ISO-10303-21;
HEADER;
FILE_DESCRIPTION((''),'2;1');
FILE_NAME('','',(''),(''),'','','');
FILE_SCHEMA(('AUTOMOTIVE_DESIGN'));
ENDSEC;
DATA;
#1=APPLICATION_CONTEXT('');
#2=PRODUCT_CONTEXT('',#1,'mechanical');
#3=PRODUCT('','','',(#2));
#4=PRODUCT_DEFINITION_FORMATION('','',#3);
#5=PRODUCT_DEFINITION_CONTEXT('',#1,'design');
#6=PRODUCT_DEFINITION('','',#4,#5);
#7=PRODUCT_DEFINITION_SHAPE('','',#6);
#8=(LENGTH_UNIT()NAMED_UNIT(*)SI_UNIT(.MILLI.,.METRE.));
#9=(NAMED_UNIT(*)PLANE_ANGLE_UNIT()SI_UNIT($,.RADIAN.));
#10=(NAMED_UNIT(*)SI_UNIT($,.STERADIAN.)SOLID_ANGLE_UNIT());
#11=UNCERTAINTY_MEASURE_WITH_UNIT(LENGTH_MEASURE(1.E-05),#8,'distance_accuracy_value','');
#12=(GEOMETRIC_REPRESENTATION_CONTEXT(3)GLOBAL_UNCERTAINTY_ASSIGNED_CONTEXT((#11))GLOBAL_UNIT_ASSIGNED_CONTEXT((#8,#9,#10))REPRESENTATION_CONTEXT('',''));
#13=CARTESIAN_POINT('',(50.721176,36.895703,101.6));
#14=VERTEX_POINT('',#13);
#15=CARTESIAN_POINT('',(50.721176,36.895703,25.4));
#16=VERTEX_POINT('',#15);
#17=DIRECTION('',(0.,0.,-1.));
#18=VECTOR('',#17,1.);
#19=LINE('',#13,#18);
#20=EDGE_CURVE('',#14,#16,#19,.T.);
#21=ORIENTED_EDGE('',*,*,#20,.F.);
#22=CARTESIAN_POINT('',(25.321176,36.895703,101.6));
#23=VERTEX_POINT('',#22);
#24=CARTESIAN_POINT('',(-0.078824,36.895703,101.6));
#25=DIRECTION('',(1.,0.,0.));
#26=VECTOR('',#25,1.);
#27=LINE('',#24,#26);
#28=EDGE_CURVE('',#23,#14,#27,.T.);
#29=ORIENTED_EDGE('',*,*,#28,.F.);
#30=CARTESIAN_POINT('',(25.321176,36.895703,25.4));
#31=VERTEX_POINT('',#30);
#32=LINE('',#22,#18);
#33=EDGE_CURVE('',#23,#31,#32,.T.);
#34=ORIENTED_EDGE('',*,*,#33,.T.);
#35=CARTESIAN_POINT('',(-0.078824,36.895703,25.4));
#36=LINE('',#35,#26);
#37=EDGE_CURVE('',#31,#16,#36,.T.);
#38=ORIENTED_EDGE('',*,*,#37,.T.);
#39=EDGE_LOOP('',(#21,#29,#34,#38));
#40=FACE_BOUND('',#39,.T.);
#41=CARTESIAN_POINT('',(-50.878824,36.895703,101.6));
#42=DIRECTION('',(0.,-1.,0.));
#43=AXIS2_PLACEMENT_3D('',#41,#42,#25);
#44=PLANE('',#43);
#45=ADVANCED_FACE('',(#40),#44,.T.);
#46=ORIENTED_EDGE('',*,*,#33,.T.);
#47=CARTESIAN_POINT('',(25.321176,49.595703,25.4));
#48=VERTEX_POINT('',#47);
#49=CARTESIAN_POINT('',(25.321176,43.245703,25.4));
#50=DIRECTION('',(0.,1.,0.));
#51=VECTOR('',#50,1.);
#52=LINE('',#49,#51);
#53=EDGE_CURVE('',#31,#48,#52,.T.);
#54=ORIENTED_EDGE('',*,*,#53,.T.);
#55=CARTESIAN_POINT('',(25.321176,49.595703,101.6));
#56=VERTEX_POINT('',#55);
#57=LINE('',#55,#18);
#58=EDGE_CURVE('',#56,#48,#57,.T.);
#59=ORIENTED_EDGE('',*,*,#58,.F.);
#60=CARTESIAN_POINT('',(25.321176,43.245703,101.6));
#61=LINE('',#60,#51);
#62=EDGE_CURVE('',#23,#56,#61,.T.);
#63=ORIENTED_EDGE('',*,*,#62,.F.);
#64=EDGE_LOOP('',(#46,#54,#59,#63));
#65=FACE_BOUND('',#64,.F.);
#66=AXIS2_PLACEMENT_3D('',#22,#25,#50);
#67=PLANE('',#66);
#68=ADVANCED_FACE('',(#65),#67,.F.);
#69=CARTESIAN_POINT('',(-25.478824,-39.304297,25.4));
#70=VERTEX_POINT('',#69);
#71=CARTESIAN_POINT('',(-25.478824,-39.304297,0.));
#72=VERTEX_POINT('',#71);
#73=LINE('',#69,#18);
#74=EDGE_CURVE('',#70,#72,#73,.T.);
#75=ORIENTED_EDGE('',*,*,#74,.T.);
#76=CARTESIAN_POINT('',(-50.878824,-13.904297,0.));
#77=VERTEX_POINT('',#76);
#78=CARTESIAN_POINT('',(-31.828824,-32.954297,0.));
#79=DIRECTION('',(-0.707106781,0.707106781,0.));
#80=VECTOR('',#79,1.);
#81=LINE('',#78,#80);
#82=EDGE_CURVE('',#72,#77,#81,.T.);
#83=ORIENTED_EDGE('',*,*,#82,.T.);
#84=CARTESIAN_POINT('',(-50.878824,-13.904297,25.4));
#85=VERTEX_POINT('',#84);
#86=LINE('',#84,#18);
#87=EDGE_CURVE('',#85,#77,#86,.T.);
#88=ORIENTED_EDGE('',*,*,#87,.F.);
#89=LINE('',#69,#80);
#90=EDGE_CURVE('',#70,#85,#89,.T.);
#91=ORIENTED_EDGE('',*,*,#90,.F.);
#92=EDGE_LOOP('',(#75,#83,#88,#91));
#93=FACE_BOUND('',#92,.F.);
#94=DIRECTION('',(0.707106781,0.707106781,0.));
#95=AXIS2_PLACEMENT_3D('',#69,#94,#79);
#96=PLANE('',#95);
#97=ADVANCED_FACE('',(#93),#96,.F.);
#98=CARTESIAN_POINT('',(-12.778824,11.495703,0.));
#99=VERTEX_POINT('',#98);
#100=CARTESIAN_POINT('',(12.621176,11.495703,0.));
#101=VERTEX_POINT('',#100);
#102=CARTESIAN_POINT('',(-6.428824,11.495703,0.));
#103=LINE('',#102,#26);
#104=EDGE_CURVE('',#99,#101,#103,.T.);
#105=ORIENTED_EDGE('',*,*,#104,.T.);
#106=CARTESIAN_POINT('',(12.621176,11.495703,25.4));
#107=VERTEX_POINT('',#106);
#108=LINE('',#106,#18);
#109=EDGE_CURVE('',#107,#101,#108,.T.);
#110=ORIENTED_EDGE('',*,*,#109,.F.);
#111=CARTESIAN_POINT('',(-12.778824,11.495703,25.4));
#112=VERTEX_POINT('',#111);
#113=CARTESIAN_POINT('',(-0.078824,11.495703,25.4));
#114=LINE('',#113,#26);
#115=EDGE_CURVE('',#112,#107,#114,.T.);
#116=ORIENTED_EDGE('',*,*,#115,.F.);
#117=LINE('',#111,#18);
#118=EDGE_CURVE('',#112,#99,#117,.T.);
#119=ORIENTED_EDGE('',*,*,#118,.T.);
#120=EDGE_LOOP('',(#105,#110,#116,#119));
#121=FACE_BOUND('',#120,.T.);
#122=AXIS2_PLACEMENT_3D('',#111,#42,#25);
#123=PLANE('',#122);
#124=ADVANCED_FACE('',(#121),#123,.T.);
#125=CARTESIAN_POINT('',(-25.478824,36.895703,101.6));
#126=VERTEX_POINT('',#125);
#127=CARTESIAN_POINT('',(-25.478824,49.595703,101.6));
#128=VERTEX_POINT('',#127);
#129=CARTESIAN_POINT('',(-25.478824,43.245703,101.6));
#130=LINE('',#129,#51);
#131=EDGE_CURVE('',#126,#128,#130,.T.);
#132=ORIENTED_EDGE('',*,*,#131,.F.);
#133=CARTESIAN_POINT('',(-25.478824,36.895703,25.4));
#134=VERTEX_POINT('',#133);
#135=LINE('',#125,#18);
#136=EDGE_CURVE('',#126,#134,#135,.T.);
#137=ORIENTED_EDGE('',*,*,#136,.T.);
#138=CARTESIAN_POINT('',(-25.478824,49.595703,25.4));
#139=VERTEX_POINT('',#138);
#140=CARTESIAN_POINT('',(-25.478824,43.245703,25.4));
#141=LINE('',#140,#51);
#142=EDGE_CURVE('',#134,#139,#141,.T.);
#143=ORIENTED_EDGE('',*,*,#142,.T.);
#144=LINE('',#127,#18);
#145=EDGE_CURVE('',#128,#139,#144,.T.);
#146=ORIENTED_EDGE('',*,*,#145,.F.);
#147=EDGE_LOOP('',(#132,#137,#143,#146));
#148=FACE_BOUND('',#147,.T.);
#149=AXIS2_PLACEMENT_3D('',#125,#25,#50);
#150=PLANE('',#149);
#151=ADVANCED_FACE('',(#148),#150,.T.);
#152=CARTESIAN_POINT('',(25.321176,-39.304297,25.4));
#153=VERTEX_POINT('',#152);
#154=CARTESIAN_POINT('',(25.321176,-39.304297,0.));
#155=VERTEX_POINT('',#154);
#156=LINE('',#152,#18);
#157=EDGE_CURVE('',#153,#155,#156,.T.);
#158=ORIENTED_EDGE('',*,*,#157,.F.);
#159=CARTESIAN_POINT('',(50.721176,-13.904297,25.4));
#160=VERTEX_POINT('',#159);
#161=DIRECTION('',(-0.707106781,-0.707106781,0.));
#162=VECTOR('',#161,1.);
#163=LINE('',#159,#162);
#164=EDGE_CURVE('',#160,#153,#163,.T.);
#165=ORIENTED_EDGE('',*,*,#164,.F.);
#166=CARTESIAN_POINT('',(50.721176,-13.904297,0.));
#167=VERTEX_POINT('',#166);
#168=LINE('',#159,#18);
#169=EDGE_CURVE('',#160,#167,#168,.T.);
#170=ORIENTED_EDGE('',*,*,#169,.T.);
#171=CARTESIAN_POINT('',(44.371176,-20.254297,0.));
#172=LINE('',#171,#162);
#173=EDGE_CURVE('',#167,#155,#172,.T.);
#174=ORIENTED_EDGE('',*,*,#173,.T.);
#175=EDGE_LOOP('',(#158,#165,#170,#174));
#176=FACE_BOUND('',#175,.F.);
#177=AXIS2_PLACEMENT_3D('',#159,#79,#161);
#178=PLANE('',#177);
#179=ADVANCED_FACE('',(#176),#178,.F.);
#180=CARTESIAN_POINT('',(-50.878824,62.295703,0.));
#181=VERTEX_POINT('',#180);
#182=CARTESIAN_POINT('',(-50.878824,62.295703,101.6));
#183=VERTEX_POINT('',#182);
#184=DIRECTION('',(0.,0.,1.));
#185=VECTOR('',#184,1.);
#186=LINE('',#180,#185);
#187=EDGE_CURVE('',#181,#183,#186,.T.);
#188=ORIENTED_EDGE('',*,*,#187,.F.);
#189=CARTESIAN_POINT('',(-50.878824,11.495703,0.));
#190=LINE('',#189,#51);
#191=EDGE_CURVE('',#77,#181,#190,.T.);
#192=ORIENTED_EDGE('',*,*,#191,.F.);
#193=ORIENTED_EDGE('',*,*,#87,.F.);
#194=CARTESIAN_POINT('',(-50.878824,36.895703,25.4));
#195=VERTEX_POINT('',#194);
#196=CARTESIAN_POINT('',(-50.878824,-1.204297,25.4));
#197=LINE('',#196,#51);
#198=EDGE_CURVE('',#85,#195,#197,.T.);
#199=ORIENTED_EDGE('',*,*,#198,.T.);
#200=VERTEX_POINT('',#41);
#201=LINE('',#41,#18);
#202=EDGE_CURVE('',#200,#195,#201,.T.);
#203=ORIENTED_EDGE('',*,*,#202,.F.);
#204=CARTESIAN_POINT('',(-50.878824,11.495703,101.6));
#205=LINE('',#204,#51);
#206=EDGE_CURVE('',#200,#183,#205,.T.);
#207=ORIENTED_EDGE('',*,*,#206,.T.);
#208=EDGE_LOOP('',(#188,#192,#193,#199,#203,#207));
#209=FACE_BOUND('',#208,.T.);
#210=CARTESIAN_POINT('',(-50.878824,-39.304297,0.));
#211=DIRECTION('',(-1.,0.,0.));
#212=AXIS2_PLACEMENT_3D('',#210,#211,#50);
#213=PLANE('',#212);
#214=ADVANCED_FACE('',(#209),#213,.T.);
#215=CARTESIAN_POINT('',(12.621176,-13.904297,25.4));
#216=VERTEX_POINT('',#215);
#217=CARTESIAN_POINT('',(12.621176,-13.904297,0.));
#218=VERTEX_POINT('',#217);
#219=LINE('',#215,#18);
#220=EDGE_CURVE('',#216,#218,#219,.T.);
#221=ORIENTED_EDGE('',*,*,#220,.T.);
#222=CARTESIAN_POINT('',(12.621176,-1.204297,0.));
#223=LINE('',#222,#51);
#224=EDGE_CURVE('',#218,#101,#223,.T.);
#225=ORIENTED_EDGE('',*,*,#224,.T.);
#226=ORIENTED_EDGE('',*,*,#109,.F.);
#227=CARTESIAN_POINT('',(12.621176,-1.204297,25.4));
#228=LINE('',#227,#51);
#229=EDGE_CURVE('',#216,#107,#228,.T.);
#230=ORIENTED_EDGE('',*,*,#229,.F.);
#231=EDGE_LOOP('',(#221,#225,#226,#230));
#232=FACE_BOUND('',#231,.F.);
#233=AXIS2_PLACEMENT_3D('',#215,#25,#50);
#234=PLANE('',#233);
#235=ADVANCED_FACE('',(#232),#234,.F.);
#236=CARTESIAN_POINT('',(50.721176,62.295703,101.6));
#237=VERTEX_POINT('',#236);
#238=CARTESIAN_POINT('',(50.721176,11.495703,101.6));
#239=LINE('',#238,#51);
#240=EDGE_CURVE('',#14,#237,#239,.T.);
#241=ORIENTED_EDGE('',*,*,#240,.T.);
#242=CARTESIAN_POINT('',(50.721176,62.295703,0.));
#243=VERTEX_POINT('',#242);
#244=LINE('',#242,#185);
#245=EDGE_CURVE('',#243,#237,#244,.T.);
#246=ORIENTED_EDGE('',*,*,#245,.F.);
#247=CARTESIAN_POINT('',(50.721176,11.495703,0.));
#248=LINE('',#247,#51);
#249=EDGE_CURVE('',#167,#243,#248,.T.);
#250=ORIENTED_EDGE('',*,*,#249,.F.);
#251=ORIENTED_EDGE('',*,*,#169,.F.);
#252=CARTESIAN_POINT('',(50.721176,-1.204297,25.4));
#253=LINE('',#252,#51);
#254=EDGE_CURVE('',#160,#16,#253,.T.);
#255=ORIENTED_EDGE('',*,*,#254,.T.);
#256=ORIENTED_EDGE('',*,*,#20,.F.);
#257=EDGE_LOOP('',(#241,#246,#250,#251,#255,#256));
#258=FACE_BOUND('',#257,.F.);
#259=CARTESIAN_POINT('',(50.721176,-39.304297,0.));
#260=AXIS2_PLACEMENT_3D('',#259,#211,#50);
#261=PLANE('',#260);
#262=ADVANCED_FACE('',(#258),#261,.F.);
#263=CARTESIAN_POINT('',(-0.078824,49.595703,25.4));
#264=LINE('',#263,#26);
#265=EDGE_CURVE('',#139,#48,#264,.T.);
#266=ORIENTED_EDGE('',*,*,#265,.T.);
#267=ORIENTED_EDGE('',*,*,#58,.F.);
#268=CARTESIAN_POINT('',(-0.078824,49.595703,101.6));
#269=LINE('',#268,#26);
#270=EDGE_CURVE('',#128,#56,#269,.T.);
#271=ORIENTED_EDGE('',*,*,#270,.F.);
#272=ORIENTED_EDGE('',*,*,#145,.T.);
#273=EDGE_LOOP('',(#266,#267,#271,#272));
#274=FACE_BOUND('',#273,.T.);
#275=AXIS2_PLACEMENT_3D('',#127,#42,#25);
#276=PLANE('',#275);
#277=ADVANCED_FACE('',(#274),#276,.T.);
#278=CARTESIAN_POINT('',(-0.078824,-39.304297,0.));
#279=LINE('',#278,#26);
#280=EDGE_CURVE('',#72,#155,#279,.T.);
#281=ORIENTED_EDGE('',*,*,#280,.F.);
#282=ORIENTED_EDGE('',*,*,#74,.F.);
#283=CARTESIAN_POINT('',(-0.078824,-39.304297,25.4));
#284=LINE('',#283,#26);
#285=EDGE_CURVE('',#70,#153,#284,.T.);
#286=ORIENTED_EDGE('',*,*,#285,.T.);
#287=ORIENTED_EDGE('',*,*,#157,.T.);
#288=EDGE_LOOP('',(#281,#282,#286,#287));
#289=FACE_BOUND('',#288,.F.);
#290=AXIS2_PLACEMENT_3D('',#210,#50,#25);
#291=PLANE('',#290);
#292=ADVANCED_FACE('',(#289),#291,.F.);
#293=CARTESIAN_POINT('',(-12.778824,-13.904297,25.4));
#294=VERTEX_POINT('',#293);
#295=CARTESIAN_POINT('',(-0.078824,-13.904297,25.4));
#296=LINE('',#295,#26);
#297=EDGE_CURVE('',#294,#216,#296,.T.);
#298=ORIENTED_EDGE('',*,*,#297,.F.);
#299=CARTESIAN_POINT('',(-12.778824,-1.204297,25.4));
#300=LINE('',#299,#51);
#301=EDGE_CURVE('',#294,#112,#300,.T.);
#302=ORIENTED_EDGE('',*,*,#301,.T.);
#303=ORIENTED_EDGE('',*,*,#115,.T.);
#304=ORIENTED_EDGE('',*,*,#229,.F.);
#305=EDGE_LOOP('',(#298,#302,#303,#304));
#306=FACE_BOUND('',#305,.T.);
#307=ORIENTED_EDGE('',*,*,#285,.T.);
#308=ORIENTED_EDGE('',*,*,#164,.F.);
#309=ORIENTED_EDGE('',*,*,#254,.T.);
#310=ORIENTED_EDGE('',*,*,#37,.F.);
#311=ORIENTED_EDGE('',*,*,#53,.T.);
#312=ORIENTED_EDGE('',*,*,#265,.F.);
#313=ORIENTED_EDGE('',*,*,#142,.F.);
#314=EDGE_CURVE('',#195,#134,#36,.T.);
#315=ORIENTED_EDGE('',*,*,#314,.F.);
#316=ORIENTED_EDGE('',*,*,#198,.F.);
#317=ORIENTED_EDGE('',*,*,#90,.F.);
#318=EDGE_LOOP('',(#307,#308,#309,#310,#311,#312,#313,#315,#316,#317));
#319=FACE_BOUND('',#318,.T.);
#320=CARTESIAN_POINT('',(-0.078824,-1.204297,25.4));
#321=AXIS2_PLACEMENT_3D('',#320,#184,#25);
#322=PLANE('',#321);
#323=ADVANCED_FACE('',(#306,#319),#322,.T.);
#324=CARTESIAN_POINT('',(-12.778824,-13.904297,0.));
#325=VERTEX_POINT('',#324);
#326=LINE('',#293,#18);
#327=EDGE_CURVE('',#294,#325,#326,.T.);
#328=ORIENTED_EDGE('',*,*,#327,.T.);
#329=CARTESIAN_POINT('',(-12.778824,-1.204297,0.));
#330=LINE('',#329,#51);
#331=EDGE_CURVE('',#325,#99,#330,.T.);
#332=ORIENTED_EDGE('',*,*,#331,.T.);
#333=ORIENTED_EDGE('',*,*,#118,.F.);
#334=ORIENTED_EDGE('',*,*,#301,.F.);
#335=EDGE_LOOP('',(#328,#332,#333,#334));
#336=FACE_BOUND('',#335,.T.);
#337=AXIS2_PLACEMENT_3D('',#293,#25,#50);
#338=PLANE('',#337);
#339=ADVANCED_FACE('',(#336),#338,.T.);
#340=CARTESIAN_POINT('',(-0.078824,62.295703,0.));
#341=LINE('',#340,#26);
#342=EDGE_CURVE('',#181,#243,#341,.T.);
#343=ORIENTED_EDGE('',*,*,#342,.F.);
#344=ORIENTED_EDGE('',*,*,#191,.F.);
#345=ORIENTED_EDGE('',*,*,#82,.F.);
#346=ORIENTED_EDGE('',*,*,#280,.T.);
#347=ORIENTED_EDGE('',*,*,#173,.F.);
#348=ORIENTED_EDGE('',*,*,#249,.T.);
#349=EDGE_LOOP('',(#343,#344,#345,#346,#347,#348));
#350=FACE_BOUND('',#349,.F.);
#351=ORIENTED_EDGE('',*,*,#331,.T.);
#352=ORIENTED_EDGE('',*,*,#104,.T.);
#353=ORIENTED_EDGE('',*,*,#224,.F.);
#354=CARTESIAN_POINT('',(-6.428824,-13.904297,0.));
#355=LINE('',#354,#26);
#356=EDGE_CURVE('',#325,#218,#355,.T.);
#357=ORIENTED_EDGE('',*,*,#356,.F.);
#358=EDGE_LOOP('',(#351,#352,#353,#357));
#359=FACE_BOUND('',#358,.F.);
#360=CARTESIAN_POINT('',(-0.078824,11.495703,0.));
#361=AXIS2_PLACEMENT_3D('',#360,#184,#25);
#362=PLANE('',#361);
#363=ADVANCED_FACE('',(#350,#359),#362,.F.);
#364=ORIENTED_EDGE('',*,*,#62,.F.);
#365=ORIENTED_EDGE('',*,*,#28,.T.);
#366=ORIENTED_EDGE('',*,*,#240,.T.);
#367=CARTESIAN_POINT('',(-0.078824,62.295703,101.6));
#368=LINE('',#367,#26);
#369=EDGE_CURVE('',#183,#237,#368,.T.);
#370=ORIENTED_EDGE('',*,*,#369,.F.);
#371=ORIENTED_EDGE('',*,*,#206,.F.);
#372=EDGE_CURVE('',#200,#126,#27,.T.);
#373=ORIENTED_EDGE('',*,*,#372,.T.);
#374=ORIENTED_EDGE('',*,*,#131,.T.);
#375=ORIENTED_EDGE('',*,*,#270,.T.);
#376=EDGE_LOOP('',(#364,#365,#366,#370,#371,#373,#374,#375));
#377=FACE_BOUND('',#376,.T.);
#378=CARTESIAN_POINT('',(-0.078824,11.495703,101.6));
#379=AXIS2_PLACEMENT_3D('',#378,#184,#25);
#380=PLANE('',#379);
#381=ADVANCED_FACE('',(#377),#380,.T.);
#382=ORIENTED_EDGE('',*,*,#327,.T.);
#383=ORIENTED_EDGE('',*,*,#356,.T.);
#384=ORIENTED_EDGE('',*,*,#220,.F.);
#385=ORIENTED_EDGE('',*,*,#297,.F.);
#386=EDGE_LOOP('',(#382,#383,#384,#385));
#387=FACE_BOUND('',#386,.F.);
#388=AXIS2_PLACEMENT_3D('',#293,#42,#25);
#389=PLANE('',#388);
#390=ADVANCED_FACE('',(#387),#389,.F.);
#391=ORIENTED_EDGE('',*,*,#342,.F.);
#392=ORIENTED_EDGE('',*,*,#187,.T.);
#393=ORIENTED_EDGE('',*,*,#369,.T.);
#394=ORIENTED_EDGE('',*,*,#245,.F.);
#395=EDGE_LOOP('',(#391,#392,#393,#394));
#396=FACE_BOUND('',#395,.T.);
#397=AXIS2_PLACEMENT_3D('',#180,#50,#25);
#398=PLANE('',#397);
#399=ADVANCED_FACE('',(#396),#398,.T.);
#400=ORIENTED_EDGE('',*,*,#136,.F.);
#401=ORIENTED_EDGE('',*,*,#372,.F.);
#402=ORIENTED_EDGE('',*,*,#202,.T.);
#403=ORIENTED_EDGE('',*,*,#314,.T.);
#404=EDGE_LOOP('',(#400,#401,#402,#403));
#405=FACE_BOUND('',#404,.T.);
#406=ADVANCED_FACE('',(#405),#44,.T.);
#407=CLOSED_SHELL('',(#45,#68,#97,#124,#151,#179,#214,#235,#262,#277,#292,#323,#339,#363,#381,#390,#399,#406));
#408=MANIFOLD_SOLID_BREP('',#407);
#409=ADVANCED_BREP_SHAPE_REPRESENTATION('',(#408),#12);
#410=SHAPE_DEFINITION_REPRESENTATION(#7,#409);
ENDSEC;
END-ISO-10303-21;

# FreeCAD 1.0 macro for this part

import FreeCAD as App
import Part
import Sketcher
from FreeCAD import Vector
Q = App.Units.Quantity


def add_polygon(sketch, points):
    """Adds a closed chain of lines whose ends are joined by coincident constraints."""
    first, n = sketch.GeometryCount, len(points)
    for a, b in zip(points, points[1:] + points[:1]):
        sketch.addGeometry(Part.LineSegment(App.Vector(*a, 0), App.Vector(*b, 0)), False)
    for i in range(n):
        sketch.addConstraint(Sketcher.Constraint("Coincident", first + i, 2, first + (i + 1) % n, 1))

doc = App.newDocument("Part")
body = doc.addObject("PartDesign::Body", "Body")

# Sketch on XY plane
sketch1 = body.newObject("Sketcher::SketchObject", "Sketch")
sketch1.AttachmentSupport = (doc.getObject("XY_Plane"), [""])
sketch1.MapMode = "FlatFace"
add_polygon(sketch1, [(-50.878824, 62.295703), (-50.878824, -39.304297), (50.721176, -39.304297), (50.721176, 62.295703)])  # lines 0-3
sketch1.addConstraint([
    Sketcher.Constraint("Vertical", 0),
    Sketcher.Constraint("Horizontal", 1),
    Sketcher.Constraint("Vertical", 2),
    Sketcher.Constraint("Horizontal", 3),
    Sketcher.Constraint("Equal", 3, 0),
    Sketcher.Constraint("DistanceX", 1, 1, 1, 2, Q("4 in")),
    Sketcher.Constraint("DistanceX", 0, 2, -1, 1, Q("50.878824 mm")),
    Sketcher.Constraint("DistanceY", 0, 2, -1, 1, Q("39.304297 mm")),
])
pad1 = body.newObject("PartDesign::Pad", "Pad")
pad1.Profile = sketch1
pad1.Length = Q("4 in")

# Sketch on XY plane
sketch2 = body.newObject("Sketcher::SketchObject", "Sketch001")
sketch2.AttachmentSupport = (doc.getObject("XY_Plane"), [""])
sketch2.MapMode = "FlatFace"
sketch2.AttachmentOffset = App.Placement(Vector(0, 0, 4 * 25.4), App.Rotation())
add_polygon(sketch2, [(-50.878824, 36.895703), (-50.878824, -39.304297), (50.721176, -39.304297), (50.721176, 36.895703)])  # lines 0-3
sketch2.addConstraint([
    Sketcher.Constraint("Vertical", 0),
    Sketcher.Constraint("Horizontal", 1),
    Sketcher.Constraint("Vertical", 2),
    Sketcher.Constraint("Horizontal", 3),
    Sketcher.Constraint("DistanceX", 1, 1, 1, 2, Q("4 in")),
    Sketcher.Constraint("DistanceY", 0, 2, 0, 1, Q("3 in")),
    Sketcher.Constraint("DistanceX", 0, 2, -1, 1, Q("50.878824 mm")),
    Sketcher.Constraint("DistanceY", 0, 2, -1, 1, Q("39.304297 mm")),
])
pocket1 = body.newObject("PartDesign::Pocket", "Pocket")
pocket1.Profile = sketch2
pocket1.Length = Q("3 in")

# Sketch on XY plane
sketch3 = body.newObject("Sketcher::SketchObject", "Sketch002")
sketch3.AttachmentSupport = (doc.getObject("XY_Plane"), [""])
sketch3.MapMode = "FlatFace"
sketch3.AttachmentOffset = App.Placement(Vector(0, 0, 4 * 25.4), App.Rotation())
add_polygon(sketch3, [(-25.478824, 49.595703), (-25.478824, 36.895703), (25.321176, 36.895703), (25.321176, 49.595703)])  # lines 0-3
sketch3.addConstraint([
    Sketcher.Constraint("Vertical", 0),
    Sketcher.Constraint("Horizontal", 1),
    Sketcher.Constraint("Vertical", 2),
    Sketcher.Constraint("Horizontal", 3),
    Sketcher.Constraint("DistanceX", 1, 1, 1, 2, Q("2 in")),
    Sketcher.Constraint("DistanceY", 0, 2, 0, 1, Q("0.5 in")),
    Sketcher.Constraint("DistanceX", 0, 2, -1, 1, Q("25.478824 mm")),
    Sketcher.Constraint("DistanceY", -1, 1, 0, 2, Q("36.895703 mm")),
])
pocket2 = body.newObject("PartDesign::Pocket", "Pocket001")
pocket2.Profile = sketch3
pocket2.Length = Q("3 in")

# Sketch on XY plane
sketch4 = body.newObject("Sketcher::SketchObject", "Sketch003")
sketch4.AttachmentSupport = (doc.getObject("XY_Plane"), [""])
sketch4.MapMode = "FlatFace"
sketch4.AttachmentOffset = App.Placement(Vector(0, 0, 1 * 25.4), App.Rotation())
add_polygon(sketch4, [(-12.778824, 11.495703), (-12.778824, -13.904297), (12.621176, -13.904297), (12.621176, 11.495703)])  # lines 0-3
sketch4.addConstraint([
    Sketcher.Constraint("Vertical", 0),
    Sketcher.Constraint("Horizontal", 1),
    Sketcher.Constraint("Vertical", 2),
    Sketcher.Constraint("Horizontal", 3),
    Sketcher.Constraint("Equal", 3, 0),
    Sketcher.Constraint("DistanceX", 1, 1, 1, 2, Q("1 in")),
    Sketcher.Constraint("DistanceX", 0, 2, -1, 1, Q("12.778824 mm")),
    Sketcher.Constraint("DistanceY", 0, 2, -1, 1, Q("13.904297 mm")),
])
pocket3 = body.newObject("PartDesign::Pocket", "Pocket002")
pocket3.Profile = sketch4
pocket3.Length = Q("2.97 in")

# Sketch on XY plane
sketch5 = body.newObject("Sketcher::SketchObject", "Sketch004")
sketch5.AttachmentSupport = (doc.getObject("XY_Plane"), [""])
sketch5.MapMode = "FlatFace"
sketch5.AttachmentOffset = App.Placement(Vector(0, 0, 1 * 25.4), App.Rotation())
add_polygon(sketch5, [(-50.878824, -13.904297), (-50.878824, -39.304297), (-25.478824, -39.304297)])  # lines 0-2
add_polygon(sketch5, [(25.321176, -39.304297), (50.721176, -39.304297), (50.721176, -13.904297)])  # lines 3-5
sketch5.addConstraint([
    Sketcher.Constraint("Vertical", 0),
    Sketcher.Constraint("Horizontal", 1),
    Sketcher.Constraint("Horizontal", 3),
    Sketcher.Constraint("Vertical", 4),
    Sketcher.Constraint("Perpendicular", 2, 5),
    Sketcher.Constraint("Horizontal", 1, 2, 3, 2),
    Sketcher.Constraint("Horizontal", 2, 2, 4, 2),
    Sketcher.Constraint("Equal", 1, 3),
    Sketcher.Constraint("DistanceX", 1, 1, 1, 2, Q("1 in")),
    Sketcher.Constraint("DistanceX", 1, 2, 3, 2, Q("3 in")),
    Sketcher.Constraint("DistanceX", 0, 2, -1, 1, Q("50.878824 mm")),
    Sketcher.Constraint("DistanceY", 0, 2, -1, 1, Q("39.304297 mm")),
])
pocket4 = body.newObject("PartDesign::Pocket", "Pocket003")
pocket4.Profile = sketch5
pocket4.Length = Q("2.28 in")

doc.recompute()
